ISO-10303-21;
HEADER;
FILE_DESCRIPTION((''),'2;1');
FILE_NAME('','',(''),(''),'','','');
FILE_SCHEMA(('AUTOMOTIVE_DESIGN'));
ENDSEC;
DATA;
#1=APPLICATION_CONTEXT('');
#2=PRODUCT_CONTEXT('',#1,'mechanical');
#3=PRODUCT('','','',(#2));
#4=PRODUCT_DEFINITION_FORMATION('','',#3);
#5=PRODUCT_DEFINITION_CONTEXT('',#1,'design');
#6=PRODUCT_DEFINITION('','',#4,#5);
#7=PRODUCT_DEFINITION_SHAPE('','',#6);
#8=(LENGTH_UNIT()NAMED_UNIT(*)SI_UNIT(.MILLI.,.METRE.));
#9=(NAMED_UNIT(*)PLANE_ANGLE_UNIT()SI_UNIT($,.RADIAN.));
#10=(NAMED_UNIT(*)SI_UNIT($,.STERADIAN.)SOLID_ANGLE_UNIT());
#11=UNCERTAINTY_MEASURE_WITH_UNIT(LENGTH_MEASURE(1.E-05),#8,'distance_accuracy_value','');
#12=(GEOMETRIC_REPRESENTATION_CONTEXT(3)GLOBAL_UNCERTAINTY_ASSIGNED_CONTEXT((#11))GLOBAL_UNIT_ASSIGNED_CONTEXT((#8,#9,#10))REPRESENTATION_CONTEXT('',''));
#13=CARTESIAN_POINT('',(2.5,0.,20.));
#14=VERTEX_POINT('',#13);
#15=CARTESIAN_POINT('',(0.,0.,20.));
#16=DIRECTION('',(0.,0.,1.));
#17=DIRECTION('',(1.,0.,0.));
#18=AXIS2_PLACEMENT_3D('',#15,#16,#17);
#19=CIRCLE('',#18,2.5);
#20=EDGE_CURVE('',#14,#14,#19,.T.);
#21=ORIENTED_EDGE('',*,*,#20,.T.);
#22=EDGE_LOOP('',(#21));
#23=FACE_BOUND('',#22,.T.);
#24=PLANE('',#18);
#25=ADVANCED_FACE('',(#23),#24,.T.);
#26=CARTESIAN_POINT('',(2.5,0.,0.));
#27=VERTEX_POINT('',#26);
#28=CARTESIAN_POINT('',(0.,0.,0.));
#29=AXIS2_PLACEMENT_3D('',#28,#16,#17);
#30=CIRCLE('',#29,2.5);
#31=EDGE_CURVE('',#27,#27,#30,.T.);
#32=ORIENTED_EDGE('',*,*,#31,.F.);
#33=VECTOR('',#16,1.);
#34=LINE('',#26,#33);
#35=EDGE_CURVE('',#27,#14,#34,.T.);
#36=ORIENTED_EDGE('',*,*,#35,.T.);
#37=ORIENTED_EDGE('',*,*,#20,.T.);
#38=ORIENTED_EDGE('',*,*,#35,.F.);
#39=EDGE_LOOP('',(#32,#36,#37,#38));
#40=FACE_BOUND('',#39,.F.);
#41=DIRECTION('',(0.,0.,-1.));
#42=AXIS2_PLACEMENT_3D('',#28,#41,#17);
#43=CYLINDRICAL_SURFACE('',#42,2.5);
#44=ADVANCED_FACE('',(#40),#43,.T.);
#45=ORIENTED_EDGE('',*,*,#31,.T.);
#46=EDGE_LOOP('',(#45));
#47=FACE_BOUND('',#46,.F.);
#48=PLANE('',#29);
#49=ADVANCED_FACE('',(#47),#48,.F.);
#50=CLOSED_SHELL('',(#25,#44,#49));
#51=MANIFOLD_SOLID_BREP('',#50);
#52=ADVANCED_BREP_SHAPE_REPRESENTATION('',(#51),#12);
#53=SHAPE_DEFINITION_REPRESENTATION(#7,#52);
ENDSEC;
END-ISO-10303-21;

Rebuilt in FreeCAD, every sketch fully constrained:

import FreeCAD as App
import Part
import Sketcher
from FreeCAD import Vector

doc = App.newDocument("Part")
body = doc.addObject("PartDesign::Body", "Body")

# Sketch on XY plane
sketch1 = body.newObject("Sketcher::SketchObject", "Sketch")
sketch1.AttachmentSupport = (doc.getObject("XY_Plane"), [""])
sketch1.MapMode = "FlatFace"
sketch1.addGeometry(Part.Circle(Vector(0, 0, 0), Vector(0, 0, 1), 2.5), False)
sketch1.addConstraint([
    Sketcher.Constraint("Coincident", 0, 3, -1, 1),
    Sketcher.Constraint("Diameter", 0, 5.0),
])
pad1 = body.newObject("PartDesign::Pad", "Pad")
pad1.Profile = sketch1
pad1.Length = 20

doc.recompute()
